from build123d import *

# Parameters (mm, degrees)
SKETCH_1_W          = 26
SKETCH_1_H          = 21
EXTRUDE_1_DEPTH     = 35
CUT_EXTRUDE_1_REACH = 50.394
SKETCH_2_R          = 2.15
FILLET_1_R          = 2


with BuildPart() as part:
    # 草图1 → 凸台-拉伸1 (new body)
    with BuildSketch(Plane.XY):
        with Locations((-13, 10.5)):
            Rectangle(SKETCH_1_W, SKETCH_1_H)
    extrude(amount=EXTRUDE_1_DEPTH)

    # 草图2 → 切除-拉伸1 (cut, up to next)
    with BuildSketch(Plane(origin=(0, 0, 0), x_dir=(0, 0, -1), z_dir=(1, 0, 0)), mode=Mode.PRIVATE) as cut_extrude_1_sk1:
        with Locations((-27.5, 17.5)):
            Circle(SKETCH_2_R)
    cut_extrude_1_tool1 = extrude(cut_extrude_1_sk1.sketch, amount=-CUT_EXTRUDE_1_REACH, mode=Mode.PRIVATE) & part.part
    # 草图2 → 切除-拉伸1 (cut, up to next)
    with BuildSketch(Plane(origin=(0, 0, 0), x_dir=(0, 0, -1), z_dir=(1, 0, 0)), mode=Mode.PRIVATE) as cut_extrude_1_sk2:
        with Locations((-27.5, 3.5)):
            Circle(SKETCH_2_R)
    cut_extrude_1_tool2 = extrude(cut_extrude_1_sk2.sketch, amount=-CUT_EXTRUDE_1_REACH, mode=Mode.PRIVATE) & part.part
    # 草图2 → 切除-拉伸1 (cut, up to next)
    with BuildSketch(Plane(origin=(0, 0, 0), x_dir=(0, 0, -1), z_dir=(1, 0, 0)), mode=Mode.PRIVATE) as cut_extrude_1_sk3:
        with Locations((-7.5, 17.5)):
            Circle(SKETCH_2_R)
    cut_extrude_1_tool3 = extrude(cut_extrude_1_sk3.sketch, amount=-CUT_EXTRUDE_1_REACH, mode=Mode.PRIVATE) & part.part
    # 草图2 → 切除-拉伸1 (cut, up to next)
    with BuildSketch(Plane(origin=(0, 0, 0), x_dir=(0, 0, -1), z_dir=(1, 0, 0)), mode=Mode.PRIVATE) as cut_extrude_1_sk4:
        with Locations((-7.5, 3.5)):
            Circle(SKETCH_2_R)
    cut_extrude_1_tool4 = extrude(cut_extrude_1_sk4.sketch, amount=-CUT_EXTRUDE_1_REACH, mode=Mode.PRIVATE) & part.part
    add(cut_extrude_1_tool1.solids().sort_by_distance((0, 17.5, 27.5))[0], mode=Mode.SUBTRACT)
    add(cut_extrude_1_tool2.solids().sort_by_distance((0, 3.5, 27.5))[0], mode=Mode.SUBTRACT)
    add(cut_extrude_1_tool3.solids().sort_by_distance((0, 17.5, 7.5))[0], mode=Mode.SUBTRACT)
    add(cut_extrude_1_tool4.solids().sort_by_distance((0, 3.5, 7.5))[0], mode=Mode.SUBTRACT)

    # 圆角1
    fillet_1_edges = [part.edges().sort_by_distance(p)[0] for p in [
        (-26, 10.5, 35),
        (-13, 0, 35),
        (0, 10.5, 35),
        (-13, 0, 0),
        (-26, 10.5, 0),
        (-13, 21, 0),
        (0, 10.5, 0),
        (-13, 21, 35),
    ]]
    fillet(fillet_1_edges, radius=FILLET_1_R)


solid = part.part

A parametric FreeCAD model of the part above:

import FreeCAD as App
import Part
import Sketcher

V = App.Vector


def edges_at(feature, points):
    """Names of the edges that pass closest to the given points."""
    edges = feature.Shape.Edges
    near = lambda p: min(range(len(edges)), key=lambda i: edges[i].distToShape(Part.Vertex(*p))[0])
    return sorted({f"Edge{near(p) + 1}" for p in points})


def add_polygon(sketch, points):
    """Adds a closed chain of lines whose ends are joined by coincident constraints."""
    first, n = sketch.GeometryCount, len(points)
    for a, b in zip(points, points[1:] + points[:1]):
        sketch.addGeometry(Part.LineSegment(App.Vector(*a, 0), App.Vector(*b, 0)), False)
    for i in range(n):
        sketch.addConstraint(Sketcher.Constraint("Coincident", first + i, 2, first + (i + 1) % n, 1))

doc = App.newDocument("Part")
params = doc.addObject("Spreadsheet::Sheet", "Params")
for row, (alias, value) in enumerate([
    ("sketch1_width", "26 mm"),
    ("sketch1_height", "21 mm"),
    ("pad1_length", "35 mm"),
    ("sketch2_diameter", "4.3 mm"),
    ("sketch3_diameter", "4.3 mm"),
    ("sketch4_diameter", "4.3 mm"),
    ("sketch5_diameter", "4.3 mm"),
    ("fillet_radius", "2 mm"),
], start=1):
    params.set(f"A{row}", alias)
    params.set(f"B{row}", "=" + value)
    params.setAlias(f"B{row}", alias)

body = doc.addObject("PartDesign::Body", "Body")

# Sketch on XY plane
sketch1 = body.newObject("Sketcher::SketchObject", "Sketch")
sketch1.AttachmentSupport = (doc.getObject("XY_Plane"), [""])
sketch1.MapMode = "FlatFace"
add_polygon(sketch1, [(-26, 21), (-26, 0), (0, 0), (0, 21)])  # lines 0-3
sketch1.addConstraint(Sketcher.Constraint("Vertical", 0))
sketch1.addConstraint(Sketcher.Constraint("Horizontal", 1))
sketch1.addConstraint(Sketcher.Constraint("Vertical", 2))
sketch1.addConstraint(Sketcher.Constraint("Horizontal", 3))
sketch1.addConstraint(Sketcher.Constraint("Coincident", 1, 2, -1, 1))
sketch1.addConstraint(Sketcher.Constraint("DistanceX", 1, 1, 1, 2, 26.0))
sketch1.addConstraint(Sketcher.Constraint("DistanceY", 0, 2, 0, 1, 21.0))
sketch1.setExpression("Constraints[9]", "Params.sketch1_width")
sketch1.setExpression("Constraints[10]", "Params.sketch1_height")
pad1 = body.newObject("PartDesign::Pad", "Pad")
pad1.Profile = sketch1
pad1.setExpression("Length", "Params.pad1_length")

# Sketch on YZ plane
sketch2 = body.newObject("Sketcher::SketchObject", "Sketch001")
sketch2.AttachmentSupport = (doc.getObject("YZ_Plane"), [""])
sketch2.MapMode = "FlatFace"
sketch2.addGeometry(Part.Circle(V(17.5, 27.5, 0), V(0, 0, 1), 2.15), False)
sketch2.addConstraint(Sketcher.Constraint("Diameter", 0, 4.3))
sketch2.addConstraint(Sketcher.Constraint("DistanceX", -1, 1, 0, 3, 17.5))
sketch2.addConstraint(Sketcher.Constraint("DistanceY", -1, 1, 0, 3, 27.5))
sketch2.setExpression("Constraints[0]", "Params.sketch2_diameter")
pocket1 = body.newObject("PartDesign::Pocket", "Pocket")
pocket1.Profile = sketch2
pocket1.Type = "UpToFirst"

# Sketch on YZ plane
sketch3 = body.newObject("Sketcher::SketchObject", "Sketch002")
sketch3.AttachmentSupport = (doc.getObject("YZ_Plane"), [""])
sketch3.MapMode = "FlatFace"
sketch3.addGeometry(Part.Circle(V(3.5, 27.5, 0), V(0, 0, 1), 2.15), False)
sketch3.addConstraint(Sketcher.Constraint("Diameter", 0, 4.3))
sketch3.addConstraint(Sketcher.Constraint("DistanceX", -1, 1, 0, 3, 3.5))
sketch3.addConstraint(Sketcher.Constraint("DistanceY", -1, 1, 0, 3, 27.5))
sketch3.setExpression("Constraints[0]", "Params.sketch3_diameter")
pocket2 = body.newObject("PartDesign::Pocket", "Pocket001")
pocket2.Profile = sketch3
pocket2.Type = "UpToFirst"

# Sketch on YZ plane
sketch4 = body.newObject("Sketcher::SketchObject", "Sketch003")
sketch4.AttachmentSupport = (doc.getObject("YZ_Plane"), [""])
sketch4.MapMode = "FlatFace"
sketch4.addGeometry(Part.Circle(V(17.5, 7.5, 0), V(0, 0, 1), 2.15), False)
sketch4.addConstraint(Sketcher.Constraint("Diameter", 0, 4.3))
sketch4.addConstraint(Sketcher.Constraint("DistanceX", -1, 1, 0, 3, 17.5))
sketch4.addConstraint(Sketcher.Constraint("DistanceY", -1, 1, 0, 3, 7.5))
sketch4.setExpression("Constraints[0]", "Params.sketch4_diameter")
pocket3 = body.newObject("PartDesign::Pocket", "Pocket002")
pocket3.Profile = sketch4
pocket3.Type = "UpToFirst"

# Sketch on YZ plane
sketch5 = body.newObject("Sketcher::SketchObject", "Sketch004")
sketch5.AttachmentSupport = (doc.getObject("YZ_Plane"), [""])
sketch5.MapMode = "FlatFace"
sketch5.addGeometry(Part.Circle(V(3.5, 7.5, 0), V(0, 0, 1), 2.15), False)
sketch5.addConstraint(Sketcher.Constraint("Diameter", 0, 4.3))
sketch5.addConstraint(Sketcher.Constraint("DistanceX", -1, 1, 0, 3, 3.5))
sketch5.addConstraint(Sketcher.Constraint("DistanceY", -1, 1, 0, 3, 7.5))
sketch5.setExpression("Constraints[0]", "Params.sketch5_diameter")
pocket4 = body.newObject("PartDesign::Pocket", "Pocket003")
pocket4.Profile = sketch5
pocket4.Type = "UpToFirst"
doc.recompute()

fillet = body.newObject("PartDesign::Fillet", "Fillet")
fillet.Base = (pocket4, edges_at(pocket4, [
    (-26, 10.5, 35),
    (-13, 0, 35),
    (0, 10.5, 35),
    (-13, 0, 0),
    (-26, 10.5, 0),
    (-13, 21, 0),
    (0, 10.5, 0),
    (-13, 21, 35),
]))
fillet.setExpression("Radius", "Params.fillet_radius")

doc.recompute()
